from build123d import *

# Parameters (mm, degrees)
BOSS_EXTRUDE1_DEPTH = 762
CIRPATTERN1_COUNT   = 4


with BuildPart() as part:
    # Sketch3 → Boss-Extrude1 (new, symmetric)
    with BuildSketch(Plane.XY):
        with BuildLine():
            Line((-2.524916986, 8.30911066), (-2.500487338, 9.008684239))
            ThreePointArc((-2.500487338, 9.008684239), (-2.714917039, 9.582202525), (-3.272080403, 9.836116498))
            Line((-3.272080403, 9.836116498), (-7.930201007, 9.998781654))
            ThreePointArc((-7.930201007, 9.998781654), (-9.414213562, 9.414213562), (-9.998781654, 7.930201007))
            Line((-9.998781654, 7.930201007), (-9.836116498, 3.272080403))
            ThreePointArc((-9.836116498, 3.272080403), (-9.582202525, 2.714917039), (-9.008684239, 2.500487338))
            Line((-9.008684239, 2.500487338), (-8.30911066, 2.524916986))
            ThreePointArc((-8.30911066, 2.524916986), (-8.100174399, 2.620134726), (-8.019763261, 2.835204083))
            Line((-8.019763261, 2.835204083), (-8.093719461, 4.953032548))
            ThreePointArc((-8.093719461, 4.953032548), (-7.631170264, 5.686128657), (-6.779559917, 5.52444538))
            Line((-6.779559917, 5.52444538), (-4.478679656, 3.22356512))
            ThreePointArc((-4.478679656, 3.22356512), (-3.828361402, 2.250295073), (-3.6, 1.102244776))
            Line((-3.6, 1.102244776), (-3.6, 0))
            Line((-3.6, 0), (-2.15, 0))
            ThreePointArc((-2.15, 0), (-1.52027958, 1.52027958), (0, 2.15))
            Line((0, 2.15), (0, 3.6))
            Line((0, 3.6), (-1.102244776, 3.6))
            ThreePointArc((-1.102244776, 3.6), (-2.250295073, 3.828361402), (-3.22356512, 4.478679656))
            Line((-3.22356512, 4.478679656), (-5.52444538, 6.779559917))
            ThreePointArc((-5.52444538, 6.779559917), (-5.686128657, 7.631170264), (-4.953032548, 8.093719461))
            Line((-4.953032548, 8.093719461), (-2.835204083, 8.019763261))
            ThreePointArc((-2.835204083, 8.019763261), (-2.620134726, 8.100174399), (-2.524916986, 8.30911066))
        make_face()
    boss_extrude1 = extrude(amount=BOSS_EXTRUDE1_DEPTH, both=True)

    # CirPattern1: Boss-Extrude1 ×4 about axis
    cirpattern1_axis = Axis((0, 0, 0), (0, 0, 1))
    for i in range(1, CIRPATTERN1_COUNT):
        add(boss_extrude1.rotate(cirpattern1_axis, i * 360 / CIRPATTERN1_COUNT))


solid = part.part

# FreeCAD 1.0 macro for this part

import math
import FreeCAD as App
import Part
import Sketcher
from FreeCAD import Vector
Q = App.Units.Quantity

doc = App.newDocument("Part")
body = doc.addObject("PartDesign::Body", "Body")

# Sketch on XY plane
sketch1 = doc.addObject("Sketcher::SketchObject", "Sketch")
body.addObject(sketch1)
sketch1.AttachmentSupport = (doc.XY_Plane, [""])
sketch1.MapMode = "FlatFace"
sketch1.addGeometry([
    Part.LineSegment(Vector(-2.524917, 8.309111, 0), Vector(-2.500487, 9.008684, 0)),  # 0
    Part.ArcOfCircle(Part.Circle(Vector(-3.3, 9.036604, 0), Vector(0, 0, 1), 0.8), math.radians(-2), math.radians(88)),  # 1
    Part.LineSegment(Vector(-3.27208, 9.836116, 0), Vector(-7.930201, 9.998782, 0)),  # 2
    Part.ArcOfCircle(Part.Circle(Vector(-8, 8, 0), Vector(0, 0, 1), 2), math.radians(88), math.radians(182)),  # 3
    Part.LineSegment(Vector(-9.998782, 7.930201, 0), Vector(-9.836116, 3.27208, 0)),  # 4
    Part.ArcOfCircle(Part.Circle(Vector(-9.036604, 3.3, 0), Vector(0, 0, 1), 0.8), math.radians(-178), math.radians(-88)),  # 5
    Part.LineSegment(Vector(-9.008684, 2.500487, 0), Vector(-8.309111, 2.524917, 0)),  # 6
    Part.ArcOfCircle(Part.Circle(Vector(-8.319581, 2.824734, 0), Vector(0, 0, 1), 0.3), math.radians(-88), math.radians(2)),  # 7
    Part.LineSegment(Vector(-8.019763, 2.835204, 0), Vector(-8.093719, 4.953033, 0)),  # 8
    Part.ArcOfCircle(Part.Circle(Vector(-7.324097, 4.979908, 0), Vector(0, 0, 1), 0.770092), math.radians(45), math.radians(182)),  # 9
    Part.LineSegment(Vector(-6.77956, 5.524445, 0), Vector(-4.47868, 3.223565, 0)),  # 10
    Part.ArcOfCircle(Part.Circle(Vector(-6.6, 1.102245, 0), Vector(0, 0, 1), 3), math.radians(0), math.radians(45)),  # 11
    Part.LineSegment(Vector(-3.6, 1.102245, 0), Vector(-3.6, 0, 0)),  # 12
    Part.LineSegment(Vector(-3.6, 0, 0), Vector(-2.15, 0, 0)),  # 13
    Part.ArcOfCircle(Part.Circle(Vector(0, 0, 0), Vector(0, 0, 1), 2.15), math.radians(90), math.radians(180)),  # 14
    Part.LineSegment(Vector(0, 2.15, 0), Vector(0, 3.6, 0)),  # 15
    Part.LineSegment(Vector(0, 3.6, 0), Vector(-1.102245, 3.6, 0)),  # 16
    Part.ArcOfCircle(Part.Circle(Vector(-1.102245, 6.6, 0), Vector(0, 0, 1), 3), math.radians(-135), math.radians(-90)),  # 17
    Part.LineSegment(Vector(-3.223565, 4.47868, 0), Vector(-5.524445, 6.77956, 0)),  # 18
    Part.ArcOfCircle(Part.Circle(Vector(-4.979908, 7.324097, 0), Vector(0, 0, 1), 0.770092), math.radians(88), math.radians(225)),  # 19
    Part.LineSegment(Vector(-4.953033, 8.093719, 0), Vector(-2.835204, 8.019763, 0)),  # 20
    Part.ArcOfCircle(Part.Circle(Vector(-2.824734, 8.319581, 0), Vector(0, 0, 1), 0.3), math.radians(-92), math.radians(-2)),  # 21
], False)
sketch1.addConstraint([
    Sketcher.Constraint("Tangent", 0, 2, 1, 1),
    Sketcher.Constraint("Tangent", 1, 2, 2, 1),
    Sketcher.Constraint("Tangent", 2, 2, 3, 1),
    Sketcher.Constraint("Tangent", 3, 2, 4, 1),
    Sketcher.Constraint("Tangent", 4, 2, 5, 1),
    Sketcher.Constraint("Tangent", 5, 2, 6, 1),
    Sketcher.Constraint("Tangent", 6, 2, 7, 1),
    Sketcher.Constraint("Tangent", 7, 2, 8, 1),
    Sketcher.Constraint("Tangent", 8, 2, 9, 2),
    Sketcher.Constraint("Tangent", 9, 1, 10, 1),
    Sketcher.Constraint("Tangent", 10, 2, 11, 2),
    Sketcher.Constraint("Tangent", 11, 1, 12, 1),
    Sketcher.Constraint("Coincident", 12, 2, 13, 1),
    Sketcher.Constraint("Coincident", 13, 2, 14, 2),
    Sketcher.Constraint("Coincident", 14, 1, 15, 1),
    Sketcher.Constraint("Coincident", 15, 2, 16, 1),
    Sketcher.Constraint("Tangent", 16, 2, 17, 2),
    Sketcher.Constraint("Tangent", 17, 1, 18, 1),
    Sketcher.Constraint("Tangent", 18, 2, 19, 2),
    Sketcher.Constraint("Tangent", 19, 1, 20, 1),
    Sketcher.Constraint("Tangent", 20, 2, 21, 1),
    Sketcher.Constraint("Tangent", 21, 2, 0, 1),
    Sketcher.Constraint("Vertical", 12),
    Sketcher.Constraint("Horizontal", 13),
    Sketcher.Constraint("Vertical", 15),
    Sketcher.Constraint("Horizontal", 16),
    Sketcher.Constraint("Coincident", 14, 3, -1, 1),
    Sketcher.Constraint("Equal", 1, 5),
    Sketcher.Constraint("Equal", 11, 17),
    Sketcher.Constraint("Equal", 9, 19),
    Sketcher.Constraint("Equal", 7, 21),
    Sketcher.Constraint("PointOnObject", 12, 2, -1),
    Sketcher.Constraint("PointOnObject", 14, 1, -2),
    Sketcher.Constraint("Perpendicular", 0, 2),
    Sketcher.Constraint("Perpendicular", 4, 6),
    Sketcher.Constraint("Perpendicular", 6, 8),
    Sketcher.Constraint("Parallel", 10, 18),
    Sketcher.Constraint("Parallel", 2, 20),
    Sketcher.Constraint("Equal", 16, 12),
    Sketcher.Constraint("Equal", 13, 15),
    Sketcher.Constraint("Equal", 2, 4),
    Sketcher.Constraint("Equal", 0, 6),
    Sketcher.Constraint("Equal", 10, 18),
    Sketcher.Constraint("Equal", 8, 20),
    Sketcher.Constraint("Radius", 3, Q("2 mm")),
    Sketcher.Constraint("Radius", 11, Q("3 mm")),
    Sketcher.Constraint("Radius", 1, Q("0.8 mm")),
    Sketcher.Constraint("Radius", 7, Q("0.3 mm")),
    Sketcher.Constraint("Angle", 0, Q("88 deg")),
    Sketcher.Constraint("Angle", 4, Q("-88 deg")),
    Sketcher.Constraint("Radius", 14, Q("2.15 mm")),
    Sketcher.Constraint("DistanceX", 3, 3, -1, 1, Q("8 mm")),
    Sketcher.Constraint("Distance", 0, Q("0.7 mm")),
    Sketcher.Constraint("DistanceX", 13, 1, 13, 2, Q("1.45 mm")),
    Sketcher.Constraint("DistanceX", 1, 3, -1, 1, Q("3.3 mm")),
    Sketcher.Constraint("Radius", 9, Q("0.770092 mm")),
    Sketcher.Constraint("DistanceY", 7, 3, 8, 2, Q("2.128298 mm")),
])
pad1 = doc.addObject("PartDesign::Pad", "Pad")
body.addObject(pad1)
pad1.Profile = sketch1
pad1.Length = 1524
pad1.Midplane = True
doc.recompute()

polarpattern = doc.addObject("PartDesign::PolarPattern", "PolarPattern")
body.addObject(polarpattern)
polarpattern.Originals = [pad1]
polarpattern.Axis = (doc.Z_Axis, [""])
polarpattern.Angle = 360
polarpattern.Occurrences = 4
body.Tip = polarpattern

doc.recompute()
